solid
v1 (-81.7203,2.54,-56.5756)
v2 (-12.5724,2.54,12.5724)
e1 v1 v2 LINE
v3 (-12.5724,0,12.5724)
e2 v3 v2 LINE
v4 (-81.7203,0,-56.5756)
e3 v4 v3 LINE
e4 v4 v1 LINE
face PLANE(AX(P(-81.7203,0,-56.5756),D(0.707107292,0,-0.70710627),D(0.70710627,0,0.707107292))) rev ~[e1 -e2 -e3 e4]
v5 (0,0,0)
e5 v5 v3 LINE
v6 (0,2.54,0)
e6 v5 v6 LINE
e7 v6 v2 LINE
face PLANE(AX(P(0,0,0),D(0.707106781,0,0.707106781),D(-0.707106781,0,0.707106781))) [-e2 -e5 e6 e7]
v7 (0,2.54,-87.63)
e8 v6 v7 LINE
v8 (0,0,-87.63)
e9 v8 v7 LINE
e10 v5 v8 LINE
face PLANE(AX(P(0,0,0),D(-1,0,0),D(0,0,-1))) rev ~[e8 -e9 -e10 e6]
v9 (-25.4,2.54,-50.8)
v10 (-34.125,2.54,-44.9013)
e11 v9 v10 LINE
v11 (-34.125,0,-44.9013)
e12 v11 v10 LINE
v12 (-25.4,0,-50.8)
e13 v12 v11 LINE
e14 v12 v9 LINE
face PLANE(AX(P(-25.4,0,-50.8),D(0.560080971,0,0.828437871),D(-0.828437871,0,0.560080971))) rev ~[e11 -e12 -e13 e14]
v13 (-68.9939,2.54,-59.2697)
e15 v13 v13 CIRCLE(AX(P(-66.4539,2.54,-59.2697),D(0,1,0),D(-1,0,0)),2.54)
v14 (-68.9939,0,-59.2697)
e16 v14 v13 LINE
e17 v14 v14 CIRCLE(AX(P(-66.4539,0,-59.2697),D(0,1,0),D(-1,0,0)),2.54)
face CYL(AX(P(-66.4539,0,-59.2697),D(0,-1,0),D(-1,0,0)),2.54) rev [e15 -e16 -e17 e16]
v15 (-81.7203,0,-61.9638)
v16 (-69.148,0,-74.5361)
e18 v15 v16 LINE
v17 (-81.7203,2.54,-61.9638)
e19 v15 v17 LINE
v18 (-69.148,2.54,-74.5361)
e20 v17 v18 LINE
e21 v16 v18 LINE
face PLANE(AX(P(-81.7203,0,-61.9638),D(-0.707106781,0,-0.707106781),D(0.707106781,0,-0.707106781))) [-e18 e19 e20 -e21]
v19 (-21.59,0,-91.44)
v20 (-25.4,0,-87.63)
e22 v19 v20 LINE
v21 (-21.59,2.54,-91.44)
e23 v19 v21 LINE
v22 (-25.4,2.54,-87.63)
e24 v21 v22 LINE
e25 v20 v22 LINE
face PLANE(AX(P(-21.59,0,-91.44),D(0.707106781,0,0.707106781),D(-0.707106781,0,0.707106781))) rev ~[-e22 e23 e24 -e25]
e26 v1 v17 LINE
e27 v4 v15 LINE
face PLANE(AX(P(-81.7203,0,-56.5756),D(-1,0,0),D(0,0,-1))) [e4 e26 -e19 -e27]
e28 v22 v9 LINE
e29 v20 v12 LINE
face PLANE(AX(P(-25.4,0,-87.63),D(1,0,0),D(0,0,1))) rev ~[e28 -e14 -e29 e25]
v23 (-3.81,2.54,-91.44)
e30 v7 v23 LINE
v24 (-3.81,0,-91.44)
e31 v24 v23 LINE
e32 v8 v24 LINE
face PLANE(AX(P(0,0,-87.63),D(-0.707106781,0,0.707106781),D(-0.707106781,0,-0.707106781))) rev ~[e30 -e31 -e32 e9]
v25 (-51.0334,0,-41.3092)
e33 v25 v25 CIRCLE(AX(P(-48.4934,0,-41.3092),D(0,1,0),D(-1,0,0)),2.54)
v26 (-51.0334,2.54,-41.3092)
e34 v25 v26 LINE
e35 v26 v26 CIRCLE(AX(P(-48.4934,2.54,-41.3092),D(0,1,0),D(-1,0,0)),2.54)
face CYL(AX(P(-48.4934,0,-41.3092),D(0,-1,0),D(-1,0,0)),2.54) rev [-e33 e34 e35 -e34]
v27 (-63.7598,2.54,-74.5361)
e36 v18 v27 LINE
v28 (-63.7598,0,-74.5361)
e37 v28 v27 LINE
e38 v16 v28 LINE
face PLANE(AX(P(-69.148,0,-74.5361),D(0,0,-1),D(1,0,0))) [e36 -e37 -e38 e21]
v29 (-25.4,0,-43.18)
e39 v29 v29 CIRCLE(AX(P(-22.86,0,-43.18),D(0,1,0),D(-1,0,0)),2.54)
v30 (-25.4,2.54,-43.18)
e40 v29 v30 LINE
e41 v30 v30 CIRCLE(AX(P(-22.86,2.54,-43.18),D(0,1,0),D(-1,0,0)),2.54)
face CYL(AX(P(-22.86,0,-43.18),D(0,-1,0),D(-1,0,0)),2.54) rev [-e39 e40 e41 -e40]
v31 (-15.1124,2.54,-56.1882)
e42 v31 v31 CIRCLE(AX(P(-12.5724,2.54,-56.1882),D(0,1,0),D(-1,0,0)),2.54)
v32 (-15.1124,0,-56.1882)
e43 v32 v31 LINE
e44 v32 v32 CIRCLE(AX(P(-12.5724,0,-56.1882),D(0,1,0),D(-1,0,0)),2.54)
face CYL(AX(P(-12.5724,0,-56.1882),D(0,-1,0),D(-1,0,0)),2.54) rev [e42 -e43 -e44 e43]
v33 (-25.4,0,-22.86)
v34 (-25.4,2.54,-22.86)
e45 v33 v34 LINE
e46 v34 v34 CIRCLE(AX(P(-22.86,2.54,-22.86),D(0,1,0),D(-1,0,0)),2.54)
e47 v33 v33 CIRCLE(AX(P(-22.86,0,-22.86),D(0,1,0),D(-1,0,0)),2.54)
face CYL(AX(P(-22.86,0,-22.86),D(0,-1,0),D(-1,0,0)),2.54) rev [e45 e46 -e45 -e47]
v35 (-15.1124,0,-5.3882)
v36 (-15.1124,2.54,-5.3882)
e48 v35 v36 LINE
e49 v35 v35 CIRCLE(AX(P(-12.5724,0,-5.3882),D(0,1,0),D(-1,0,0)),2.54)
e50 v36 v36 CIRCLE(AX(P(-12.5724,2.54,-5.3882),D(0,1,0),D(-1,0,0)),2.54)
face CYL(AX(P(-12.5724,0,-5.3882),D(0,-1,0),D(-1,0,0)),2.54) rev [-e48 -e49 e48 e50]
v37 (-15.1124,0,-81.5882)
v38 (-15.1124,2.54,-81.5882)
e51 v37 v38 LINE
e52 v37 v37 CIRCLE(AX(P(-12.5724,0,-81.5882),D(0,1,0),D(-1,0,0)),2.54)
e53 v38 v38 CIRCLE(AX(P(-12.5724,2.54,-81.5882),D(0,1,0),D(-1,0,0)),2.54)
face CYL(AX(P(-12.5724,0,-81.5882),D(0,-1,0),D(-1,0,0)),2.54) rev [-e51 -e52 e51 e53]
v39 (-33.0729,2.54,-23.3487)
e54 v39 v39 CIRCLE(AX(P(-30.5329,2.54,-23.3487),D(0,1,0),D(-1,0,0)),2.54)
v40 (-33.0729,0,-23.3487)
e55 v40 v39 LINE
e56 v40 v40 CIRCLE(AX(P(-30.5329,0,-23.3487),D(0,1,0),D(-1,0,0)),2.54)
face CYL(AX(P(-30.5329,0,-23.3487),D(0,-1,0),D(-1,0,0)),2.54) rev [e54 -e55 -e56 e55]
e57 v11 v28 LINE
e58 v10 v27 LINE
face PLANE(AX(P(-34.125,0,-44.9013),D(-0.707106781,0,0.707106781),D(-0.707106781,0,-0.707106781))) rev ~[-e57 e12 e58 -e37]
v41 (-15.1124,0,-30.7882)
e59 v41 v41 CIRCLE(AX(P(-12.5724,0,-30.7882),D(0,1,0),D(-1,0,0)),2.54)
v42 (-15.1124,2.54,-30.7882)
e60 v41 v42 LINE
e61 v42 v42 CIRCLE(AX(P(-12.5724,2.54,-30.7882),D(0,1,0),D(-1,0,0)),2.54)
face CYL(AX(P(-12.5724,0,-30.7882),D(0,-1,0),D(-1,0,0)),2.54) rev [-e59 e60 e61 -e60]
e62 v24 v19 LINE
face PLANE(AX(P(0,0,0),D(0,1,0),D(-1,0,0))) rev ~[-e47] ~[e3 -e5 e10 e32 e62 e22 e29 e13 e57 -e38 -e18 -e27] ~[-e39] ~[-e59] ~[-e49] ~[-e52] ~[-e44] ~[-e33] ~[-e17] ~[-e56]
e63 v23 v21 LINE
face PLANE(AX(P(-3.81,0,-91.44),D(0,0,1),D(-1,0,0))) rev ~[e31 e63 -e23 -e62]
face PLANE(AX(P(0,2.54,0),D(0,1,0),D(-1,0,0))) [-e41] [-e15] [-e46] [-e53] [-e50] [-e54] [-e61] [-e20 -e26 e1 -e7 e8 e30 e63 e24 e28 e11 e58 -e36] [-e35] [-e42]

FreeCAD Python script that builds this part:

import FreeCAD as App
import Part
import Sketcher

V = App.Vector
Q = App.Units.Quantity

doc = App.newDocument("Part")
params = doc.addObject("Spreadsheet::Sheet", "Params")
for row, (alias, value) in enumerate([
    ("sketch1_width", "0.7 in"),
    ("sketch1_length", "0.7 in"),
    ("sketch1_diameter", "0.2 in"),
    ("sketch1_height", "3.45 in"),
    ("sketch1_length2", "1.65 in"),
    ("pad1_length", "0.1 in"),
], start=1):
    params.set(f"A{row}", alias)
    params.set(f"B{row}", "=" + value)
    params.setAlias(f"B{row}", alias)

body = doc.addObject("PartDesign::Body", "Body")

# Sketch on XZ plane
sketch1 = doc.addObject("Sketcher::SketchObject", "Sketch")
body.addObject(sketch1)
sketch1.AttachmentSupport = (doc.XZ_Plane, [""])
sketch1.MapMode = "FlatFace"
sketch1.addGeometry(Part.LineSegment(V(-12.6, 12.6, 0), V(0, 0, 0)), False)
sketch1.addGeometry(Part.LineSegment(V(0, 0, 0), V(0, -87.6, 0)), False)
sketch1.addGeometry(Part.LineSegment(V(0, -87.6, 0), V(-3.8, -91.4, 0)), False)
sketch1.addGeometry(Part.LineSegment(V(-3.8, -91.4, 0), V(-21.6, -91.4, 0)), False)
sketch1.addGeometry(Part.LineSegment(V(-21.6, -91.4, 0), V(-25.4, -87.6, 0)), False)
sketch1.addGeometry(Part.LineSegment(V(-25.4, -87.6, 0), V(-25.4, -50.8, 0)), False)
sketch1.addGeometry(Part.LineSegment(V(-25.4, -50.8, 0), V(-34.1, -44.9, 0)), False)
sketch1.addGeometry(Part.LineSegment(V(-34.1, -44.9, 0), V(-63.8, -74.5, 0)), False)
sketch1.addGeometry(Part.LineSegment(V(-63.8, -74.5, 0), V(-69.1, -74.5, 0)), False)
sketch1.addGeometry(Part.LineSegment(V(-69.1, -74.5, 0), V(-81.7, -62, 0)), False)
sketch1.addGeometry(Part.LineSegment(V(-81.7, -62, 0), V(-81.7, -56.6, 0)), False)
sketch1.addGeometry(Part.LineSegment(V(-81.7, -56.6, 0), V(-12.6, 12.6, 0)), False)
sketch1.addGeometry(Part.Circle(V(-12.6, -81.6, 0), V(0, 0, 1), 2.5), False)
sketch1.addGeometry(Part.Circle(V(-12.6, -56.2, 0), V(0, 0, 1), 2.5), False)
sketch1.addGeometry(Part.Circle(V(-22.9, -43.2, 0), V(0, 0, 1), 2.5), False)
sketch1.addGeometry(Part.Circle(V(-48.5, -41.3, 0), V(0, 0, 1), 2.5), False)
sketch1.addGeometry(Part.Circle(V(-66.5, -59.3, 0), V(0, 0, 1), 2.5), False)
sketch1.addGeometry(Part.Circle(V(-12.6, -30.8, 0), V(0, 0, 1), 2.5), False)
sketch1.addGeometry(Part.Circle(V(-22.9, -22.9, 0), V(0, 0, 1), 2.5), False)
sketch1.addGeometry(Part.Circle(V(-30.5, -23.3, 0), V(0, 0, 1), 2.5), False)
sketch1.addGeometry(Part.Circle(V(-12.6, -5.4, 0), V(0, 0, 1), 2.5), False)
sketch1.addConstraint(Sketcher.Constraint("Coincident", 0, 2, 1, 1))
sketch1.addConstraint(Sketcher.Constraint("Coincident", 1, 2, 2, 1))
sketch1.addConstraint(Sketcher.Constraint("Coincident", 2, 2, 3, 1))
sketch1.addConstraint(Sketcher.Constraint("Coincident", 3, 2, 4, 1))
sketch1.addConstraint(Sketcher.Constraint("Coincident", 4, 2, 5, 1))
sketch1.addConstraint(Sketcher.Constraint("Coincident", 5, 2, 6, 1))
sketch1.addConstraint(Sketcher.Constraint("Coincident", 6, 2, 7, 1))
sketch1.addConstraint(Sketcher.Constraint("Coincident", 7, 2, 8, 1))
sketch1.addConstraint(Sketcher.Constraint("Coincident", 8, 2, 9, 1))
sketch1.addConstraint(Sketcher.Constraint("Coincident", 9, 2, 10, 1))
sketch1.addConstraint(Sketcher.Constraint("Coincident", 10, 2, 11, 1))
sketch1.addConstraint(Sketcher.Constraint("Coincident", 11, 2, 0, 1))
sketch1.addConstraint(Sketcher.Constraint("Vertical", 1))
sketch1.addConstraint(Sketcher.Constraint("Horizontal", 3))
sketch1.addConstraint(Sketcher.Constraint("Vertical", 5))
sketch1.addConstraint(Sketcher.Constraint("Horizontal", 8))
sketch1.addConstraint(Sketcher.Constraint("Vertical", 10))
sketch1.addConstraint(Sketcher.Constraint("Coincident", 0, 2, -1, 1))
sketch1.addConstraint(Sketcher.Constraint("Equal", 12, 13))
sketch1.addConstraint(Sketcher.Constraint("Equal", 13, 14))
sketch1.addConstraint(Sketcher.Constraint("Equal", 14, 15))
sketch1.addConstraint(Sketcher.Constraint("Equal", 15, 16))
sketch1.addConstraint(Sketcher.Constraint("Equal", 16, 17))
sketch1.addConstraint(Sketcher.Constraint("Equal", 17, 18))
sketch1.addConstraint(Sketcher.Constraint("Equal", 18, 19))
sketch1.addConstraint(Sketcher.Constraint("Equal", 19, 20))
sketch1.addConstraint(Sketcher.Constraint("Perpendicular", 0, 2))
sketch1.addConstraint(Sketcher.Constraint("Perpendicular", 2, 4))
sketch1.addConstraint(Sketcher.Constraint("Perpendicular", 4, 7))
sketch1.addConstraint(Sketcher.Constraint("Perpendicular", 7, 9))
sketch1.addConstraint(Sketcher.Constraint("Perpendicular", 9, 11))
sketch1.addConstraint(Sketcher.Constraint("Horizontal", 1, 2, 4, 2))
sketch1.addConstraint(Sketcher.Constraint("Vertical", 12, 3, 13, 3))
sketch1.addConstraint(Sketcher.Constraint("Vertical", 13, 3, 17, 3))
sketch1.addConstraint(Sketcher.Constraint("Vertical", 14, 3, 18, 3))
sketch1.addConstraint(Sketcher.Constraint("Vertical", 17, 3, 20, 3))
sketch1.addConstraint(Sketcher.Constraint("Vertical", 20, 3, 11, 2))
sketch1.addConstraint(Sketcher.Constraint("Equal", 8, 10))
sketch1.addConstraint(Sketcher.Constraint("Equal", 2, 4))
sketch1.addConstraint(Sketcher.Constraint("Equal", 0, 9))
sketch1.addConstraint(Sketcher.Constraint("DistanceX", 3, 2, 3, 1, Q("0.7 in")))
sketch1.addConstraint(Sketcher.Constraint("Distance", 0, Q("0.7 in")))
sketch1.addConstraint(Sketcher.Constraint("Diameter", 12, Q("0.2 in")))
sketch1.addConstraint(Sketcher.Constraint("DistanceX", 4, 2, -1, 1, Q("1 in")))
sketch1.addConstraint(Sketcher.Constraint("DistanceY", 5, 2, -1, 1, Q("2 in")))
sketch1.addConstraint(Sketcher.Constraint("DistanceY", 12, 3, 13, 3, Q("1 in")))
sketch1.addConstraint(Sketcher.Constraint("DistanceY", 13, 3, 17, 3, Q("1 in")))
sketch1.addConstraint(Sketcher.Constraint("DistanceY", 17, 3, 20, 3, Q("1 in")))
sketch1.addConstraint(Sketcher.Constraint("DistanceY", 1, 2, 1, 1, Q("3.45 in")))
sketch1.addConstraint(Sketcher.Constraint("DistanceX", 14, 3, -1, 1, Q("0.9 in")))
sketch1.addConstraint(Sketcher.Constraint("DistanceY", 14, 3, -1, 1, Q("1.7 in")))
sketch1.addConstraint(Sketcher.Constraint("DistanceY", 18, 3, -1, 1, Q("0.9 in")))
sketch1.addConstraint(Sketcher.Constraint("Distance", 7, Q("1.65 in")))
sketch1.addConstraint(Sketcher.Constraint("Distance", 11, Q("3.85 in")))
sketch1.addConstraint(Sketcher.Constraint("DistanceX", 8, 2, 8, 1, Q("5.3882 mm")))
sketch1.addConstraint(Sketcher.Constraint("DistanceX", 15, 3, -1, 1, Q("1.9092 in")))
sketch1.addConstraint(Sketcher.Constraint("DistanceX", 16, 3, -1, 1, Q("2.6163 in")))
sketch1.addConstraint(Sketcher.Constraint("DistanceY", 16, 3, 15, 3, Q("0.7071 in")))
sketch1.addConstraint(Sketcher.Constraint("DistanceX", 19, 3, 17, 3, Q("0.7071 in")))
sketch1.addConstraint(Sketcher.Constraint("DistanceY", 17, 3, 19, 3, Q("0.2929 in")))
sketch1.addConstraint(Sketcher.Constraint("DistanceY", 15, 3, 19, 3, Q("0.7071 in")))
sketch1.addConstraint(Sketcher.Constraint("DistanceY", 20, 3, 11, 2, Q("0.7071 in")))
sketch1.setExpression("Constraints[40]", "Params.sketch1_width")
sketch1.setExpression("Constraints[41]", "Params.sketch1_length")
sketch1.setExpression("Constraints[42]", "Params.sketch1_diameter")
sketch1.setExpression("Constraints[48]", "Params.sketch1_height")
sketch1.setExpression("Constraints[52]", "Params.sketch1_length2")
pad1 = doc.addObject("PartDesign::Pad", "Pad")
body.addObject(pad1)
pad1.Profile = sketch1
pad1.setExpression("Length", "Params.pad1_length")
pad1.Reversed = True

doc.recompute()
